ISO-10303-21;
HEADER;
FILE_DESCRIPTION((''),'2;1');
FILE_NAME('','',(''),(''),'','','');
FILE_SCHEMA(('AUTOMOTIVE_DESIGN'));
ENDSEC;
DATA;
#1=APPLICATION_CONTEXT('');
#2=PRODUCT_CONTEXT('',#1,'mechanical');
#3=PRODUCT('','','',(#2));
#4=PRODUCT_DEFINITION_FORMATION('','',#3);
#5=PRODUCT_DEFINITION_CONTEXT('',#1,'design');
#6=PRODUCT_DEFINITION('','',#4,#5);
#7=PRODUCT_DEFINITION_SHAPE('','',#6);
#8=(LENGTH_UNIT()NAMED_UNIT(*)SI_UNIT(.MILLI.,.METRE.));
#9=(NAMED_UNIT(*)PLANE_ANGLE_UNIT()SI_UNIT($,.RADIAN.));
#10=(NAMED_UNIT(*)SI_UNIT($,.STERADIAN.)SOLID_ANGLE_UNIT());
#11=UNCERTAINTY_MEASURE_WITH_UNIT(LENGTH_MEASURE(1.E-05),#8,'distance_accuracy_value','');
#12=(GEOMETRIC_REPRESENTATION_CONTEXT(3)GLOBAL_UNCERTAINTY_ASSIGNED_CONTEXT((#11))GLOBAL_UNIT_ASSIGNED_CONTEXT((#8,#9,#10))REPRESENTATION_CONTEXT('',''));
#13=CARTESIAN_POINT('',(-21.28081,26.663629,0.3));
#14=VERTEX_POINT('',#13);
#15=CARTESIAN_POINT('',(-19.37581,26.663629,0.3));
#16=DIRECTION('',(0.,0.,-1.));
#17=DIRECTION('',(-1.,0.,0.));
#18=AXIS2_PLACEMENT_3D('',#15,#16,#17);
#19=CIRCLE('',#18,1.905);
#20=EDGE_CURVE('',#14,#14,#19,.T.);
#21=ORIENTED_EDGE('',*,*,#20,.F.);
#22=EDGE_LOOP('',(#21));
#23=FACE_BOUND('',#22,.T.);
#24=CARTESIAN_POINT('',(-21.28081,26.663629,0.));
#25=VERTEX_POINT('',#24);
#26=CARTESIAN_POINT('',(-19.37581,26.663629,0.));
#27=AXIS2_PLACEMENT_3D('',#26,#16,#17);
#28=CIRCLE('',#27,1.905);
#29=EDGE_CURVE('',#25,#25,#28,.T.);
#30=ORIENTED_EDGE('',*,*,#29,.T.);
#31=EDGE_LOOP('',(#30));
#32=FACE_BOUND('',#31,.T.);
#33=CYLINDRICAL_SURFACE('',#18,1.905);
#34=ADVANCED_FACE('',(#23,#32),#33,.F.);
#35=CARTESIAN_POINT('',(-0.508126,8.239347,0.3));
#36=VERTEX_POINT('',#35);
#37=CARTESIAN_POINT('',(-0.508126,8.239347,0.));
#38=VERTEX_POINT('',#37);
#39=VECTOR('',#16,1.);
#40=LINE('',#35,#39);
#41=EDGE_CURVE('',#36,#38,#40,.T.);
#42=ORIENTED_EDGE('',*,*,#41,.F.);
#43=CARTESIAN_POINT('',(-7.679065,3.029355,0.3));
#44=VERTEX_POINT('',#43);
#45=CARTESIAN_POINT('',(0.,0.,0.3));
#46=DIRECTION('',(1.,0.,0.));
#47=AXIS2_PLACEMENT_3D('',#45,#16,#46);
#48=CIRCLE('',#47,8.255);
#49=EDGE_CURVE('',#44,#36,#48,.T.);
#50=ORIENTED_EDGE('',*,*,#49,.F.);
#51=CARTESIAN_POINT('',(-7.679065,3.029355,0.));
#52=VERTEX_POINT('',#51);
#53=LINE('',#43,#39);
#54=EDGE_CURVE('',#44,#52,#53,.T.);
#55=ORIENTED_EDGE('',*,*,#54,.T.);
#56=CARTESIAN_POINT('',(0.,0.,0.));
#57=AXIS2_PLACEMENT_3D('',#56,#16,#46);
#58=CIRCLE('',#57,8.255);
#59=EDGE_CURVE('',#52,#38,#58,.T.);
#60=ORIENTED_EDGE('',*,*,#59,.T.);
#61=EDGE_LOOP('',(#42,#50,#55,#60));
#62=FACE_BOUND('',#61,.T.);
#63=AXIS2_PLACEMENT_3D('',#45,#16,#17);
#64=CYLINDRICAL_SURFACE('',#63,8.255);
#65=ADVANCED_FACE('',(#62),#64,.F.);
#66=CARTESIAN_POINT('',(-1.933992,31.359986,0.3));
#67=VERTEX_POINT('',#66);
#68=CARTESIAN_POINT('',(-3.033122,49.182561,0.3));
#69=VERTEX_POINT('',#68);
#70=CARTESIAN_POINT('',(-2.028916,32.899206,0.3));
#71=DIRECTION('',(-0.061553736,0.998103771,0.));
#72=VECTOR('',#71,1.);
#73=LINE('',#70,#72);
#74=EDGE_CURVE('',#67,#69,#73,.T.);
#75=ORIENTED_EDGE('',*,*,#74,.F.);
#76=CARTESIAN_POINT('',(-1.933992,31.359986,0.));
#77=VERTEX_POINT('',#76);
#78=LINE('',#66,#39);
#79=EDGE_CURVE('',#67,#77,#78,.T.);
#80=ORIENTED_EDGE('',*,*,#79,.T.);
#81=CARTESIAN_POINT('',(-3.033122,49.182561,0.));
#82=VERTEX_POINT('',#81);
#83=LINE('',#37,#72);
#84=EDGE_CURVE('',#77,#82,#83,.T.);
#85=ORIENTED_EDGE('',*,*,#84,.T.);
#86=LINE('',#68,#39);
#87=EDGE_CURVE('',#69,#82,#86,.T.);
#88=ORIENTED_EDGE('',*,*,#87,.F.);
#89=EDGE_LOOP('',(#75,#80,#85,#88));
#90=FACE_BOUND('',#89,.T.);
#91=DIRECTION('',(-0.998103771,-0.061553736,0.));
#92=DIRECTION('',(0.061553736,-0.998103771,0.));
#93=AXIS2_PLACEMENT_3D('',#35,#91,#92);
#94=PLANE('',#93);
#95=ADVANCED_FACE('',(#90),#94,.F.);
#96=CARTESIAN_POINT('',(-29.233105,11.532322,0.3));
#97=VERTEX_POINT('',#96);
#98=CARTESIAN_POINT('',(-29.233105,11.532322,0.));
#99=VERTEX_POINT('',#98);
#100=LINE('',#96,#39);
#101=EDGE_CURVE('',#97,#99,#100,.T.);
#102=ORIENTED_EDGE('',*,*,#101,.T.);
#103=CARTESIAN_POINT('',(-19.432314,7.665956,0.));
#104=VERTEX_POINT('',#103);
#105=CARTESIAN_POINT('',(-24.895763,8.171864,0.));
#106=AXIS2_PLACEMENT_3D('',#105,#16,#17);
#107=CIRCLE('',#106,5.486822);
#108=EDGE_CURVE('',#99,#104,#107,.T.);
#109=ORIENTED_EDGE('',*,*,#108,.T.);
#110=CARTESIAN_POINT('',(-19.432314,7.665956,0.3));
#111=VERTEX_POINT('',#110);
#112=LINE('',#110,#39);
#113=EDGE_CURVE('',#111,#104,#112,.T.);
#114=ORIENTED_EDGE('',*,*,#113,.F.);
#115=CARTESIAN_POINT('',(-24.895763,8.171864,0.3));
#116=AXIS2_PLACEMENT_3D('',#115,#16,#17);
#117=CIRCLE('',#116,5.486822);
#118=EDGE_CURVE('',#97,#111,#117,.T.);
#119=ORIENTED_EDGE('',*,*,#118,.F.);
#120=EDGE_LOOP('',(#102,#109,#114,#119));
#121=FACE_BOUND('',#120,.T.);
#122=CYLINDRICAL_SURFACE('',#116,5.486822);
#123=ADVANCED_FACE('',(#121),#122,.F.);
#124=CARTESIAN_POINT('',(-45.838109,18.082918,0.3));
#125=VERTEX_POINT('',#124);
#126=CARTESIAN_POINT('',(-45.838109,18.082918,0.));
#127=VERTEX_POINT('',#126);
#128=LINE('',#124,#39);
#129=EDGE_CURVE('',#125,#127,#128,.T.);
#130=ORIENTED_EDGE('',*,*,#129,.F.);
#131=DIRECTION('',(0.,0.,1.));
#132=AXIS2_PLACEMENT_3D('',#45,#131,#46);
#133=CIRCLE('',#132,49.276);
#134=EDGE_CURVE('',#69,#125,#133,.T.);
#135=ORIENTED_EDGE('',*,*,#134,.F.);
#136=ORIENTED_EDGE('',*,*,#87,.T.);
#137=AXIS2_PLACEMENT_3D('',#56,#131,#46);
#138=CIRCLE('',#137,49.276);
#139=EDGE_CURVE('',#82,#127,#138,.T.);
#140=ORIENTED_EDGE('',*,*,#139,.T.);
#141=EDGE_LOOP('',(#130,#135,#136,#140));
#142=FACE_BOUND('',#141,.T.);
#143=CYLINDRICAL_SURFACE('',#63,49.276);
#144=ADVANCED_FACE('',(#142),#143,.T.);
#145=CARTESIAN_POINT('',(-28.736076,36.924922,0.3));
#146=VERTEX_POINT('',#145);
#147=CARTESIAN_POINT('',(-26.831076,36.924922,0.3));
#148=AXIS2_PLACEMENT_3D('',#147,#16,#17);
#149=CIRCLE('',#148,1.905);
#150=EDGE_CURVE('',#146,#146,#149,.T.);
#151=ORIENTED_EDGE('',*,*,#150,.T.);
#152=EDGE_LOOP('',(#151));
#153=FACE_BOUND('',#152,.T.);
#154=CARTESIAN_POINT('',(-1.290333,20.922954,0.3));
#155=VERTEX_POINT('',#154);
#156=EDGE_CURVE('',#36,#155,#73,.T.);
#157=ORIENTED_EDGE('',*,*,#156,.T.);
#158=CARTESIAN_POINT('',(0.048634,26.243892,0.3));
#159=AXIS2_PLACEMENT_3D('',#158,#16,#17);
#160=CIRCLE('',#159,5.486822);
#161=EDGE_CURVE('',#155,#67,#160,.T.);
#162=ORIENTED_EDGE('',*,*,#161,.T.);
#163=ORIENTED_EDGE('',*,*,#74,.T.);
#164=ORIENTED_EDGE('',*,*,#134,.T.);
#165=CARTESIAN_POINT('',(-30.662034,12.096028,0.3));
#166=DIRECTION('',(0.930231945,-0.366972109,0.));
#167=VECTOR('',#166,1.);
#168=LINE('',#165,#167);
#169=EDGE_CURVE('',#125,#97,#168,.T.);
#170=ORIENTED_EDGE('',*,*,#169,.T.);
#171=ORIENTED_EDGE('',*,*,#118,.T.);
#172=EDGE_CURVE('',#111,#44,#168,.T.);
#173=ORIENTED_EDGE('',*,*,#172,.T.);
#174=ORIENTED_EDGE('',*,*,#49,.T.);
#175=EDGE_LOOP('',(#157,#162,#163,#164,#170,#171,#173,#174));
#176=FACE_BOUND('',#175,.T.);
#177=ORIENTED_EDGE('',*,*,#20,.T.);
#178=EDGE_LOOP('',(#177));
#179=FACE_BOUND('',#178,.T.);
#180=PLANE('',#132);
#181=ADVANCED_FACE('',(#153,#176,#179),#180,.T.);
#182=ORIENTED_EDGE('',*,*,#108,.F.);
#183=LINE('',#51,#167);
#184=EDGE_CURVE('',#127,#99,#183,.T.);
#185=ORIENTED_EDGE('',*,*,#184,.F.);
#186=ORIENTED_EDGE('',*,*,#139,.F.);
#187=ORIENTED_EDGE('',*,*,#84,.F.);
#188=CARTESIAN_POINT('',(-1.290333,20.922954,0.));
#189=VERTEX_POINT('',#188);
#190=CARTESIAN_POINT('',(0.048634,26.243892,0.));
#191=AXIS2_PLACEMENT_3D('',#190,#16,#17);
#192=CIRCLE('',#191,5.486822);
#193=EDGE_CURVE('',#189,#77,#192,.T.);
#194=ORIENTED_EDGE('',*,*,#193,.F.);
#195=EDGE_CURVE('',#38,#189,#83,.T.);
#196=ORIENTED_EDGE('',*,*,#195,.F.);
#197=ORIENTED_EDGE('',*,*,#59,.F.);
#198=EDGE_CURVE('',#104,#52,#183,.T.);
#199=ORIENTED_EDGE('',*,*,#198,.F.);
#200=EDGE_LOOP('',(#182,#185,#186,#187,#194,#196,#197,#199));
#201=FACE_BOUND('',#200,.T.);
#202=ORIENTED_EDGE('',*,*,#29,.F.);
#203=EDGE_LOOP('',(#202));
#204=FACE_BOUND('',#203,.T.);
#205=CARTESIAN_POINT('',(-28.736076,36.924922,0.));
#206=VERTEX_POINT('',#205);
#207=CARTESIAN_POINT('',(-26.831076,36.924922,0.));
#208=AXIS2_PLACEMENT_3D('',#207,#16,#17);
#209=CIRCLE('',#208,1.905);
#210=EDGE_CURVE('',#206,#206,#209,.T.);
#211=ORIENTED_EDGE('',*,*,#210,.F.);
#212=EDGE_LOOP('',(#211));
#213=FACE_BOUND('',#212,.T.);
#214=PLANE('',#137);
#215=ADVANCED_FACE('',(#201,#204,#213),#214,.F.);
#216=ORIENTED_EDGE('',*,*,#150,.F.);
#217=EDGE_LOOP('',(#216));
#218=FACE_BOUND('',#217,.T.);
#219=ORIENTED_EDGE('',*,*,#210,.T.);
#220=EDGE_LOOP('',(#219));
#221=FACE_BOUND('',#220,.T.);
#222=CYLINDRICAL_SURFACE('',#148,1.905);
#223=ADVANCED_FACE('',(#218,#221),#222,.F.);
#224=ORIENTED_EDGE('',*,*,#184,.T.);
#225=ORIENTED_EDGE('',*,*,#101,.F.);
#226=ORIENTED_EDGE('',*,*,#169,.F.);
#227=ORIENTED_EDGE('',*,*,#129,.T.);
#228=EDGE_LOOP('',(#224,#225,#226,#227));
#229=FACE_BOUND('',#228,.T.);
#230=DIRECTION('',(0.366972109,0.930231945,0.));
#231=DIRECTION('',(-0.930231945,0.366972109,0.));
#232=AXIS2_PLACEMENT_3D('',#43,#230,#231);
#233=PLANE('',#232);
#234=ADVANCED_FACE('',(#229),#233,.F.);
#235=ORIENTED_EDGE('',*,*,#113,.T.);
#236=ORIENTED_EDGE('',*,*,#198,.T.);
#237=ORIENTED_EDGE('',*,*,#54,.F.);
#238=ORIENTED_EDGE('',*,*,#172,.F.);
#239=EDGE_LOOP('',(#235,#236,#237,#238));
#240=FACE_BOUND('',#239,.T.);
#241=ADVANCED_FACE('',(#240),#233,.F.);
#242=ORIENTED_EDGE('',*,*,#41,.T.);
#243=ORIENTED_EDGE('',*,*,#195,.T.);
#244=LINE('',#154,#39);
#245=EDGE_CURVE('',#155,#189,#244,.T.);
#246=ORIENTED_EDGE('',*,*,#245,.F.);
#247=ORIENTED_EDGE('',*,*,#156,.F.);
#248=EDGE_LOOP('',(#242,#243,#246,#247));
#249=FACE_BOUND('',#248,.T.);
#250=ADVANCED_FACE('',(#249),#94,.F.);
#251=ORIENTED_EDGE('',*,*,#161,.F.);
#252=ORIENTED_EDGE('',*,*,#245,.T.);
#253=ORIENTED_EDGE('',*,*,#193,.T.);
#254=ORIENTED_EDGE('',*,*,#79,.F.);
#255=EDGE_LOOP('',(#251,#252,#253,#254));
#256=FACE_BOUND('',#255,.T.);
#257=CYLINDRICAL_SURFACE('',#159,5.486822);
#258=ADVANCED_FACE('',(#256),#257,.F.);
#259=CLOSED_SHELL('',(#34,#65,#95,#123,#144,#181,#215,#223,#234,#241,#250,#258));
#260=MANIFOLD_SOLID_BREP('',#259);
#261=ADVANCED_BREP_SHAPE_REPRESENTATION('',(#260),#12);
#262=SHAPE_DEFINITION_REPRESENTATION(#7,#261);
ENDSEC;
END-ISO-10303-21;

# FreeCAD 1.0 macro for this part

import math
import FreeCAD as App
import Part
import Sketcher
Q = App.Units.Quantity

doc = App.newDocument("Part")
body = doc.addObject("PartDesign::Body", "Body")

# Sketch on XY plane
sketch1 = body.newObject("Sketcher::SketchObject", "Sketch")
sketch1.AttachmentSupport = (doc.getObject("XY_Plane"), [""])
sketch1.MapMode = "FlatFace"
sketch1.addGeometry([
    Part.LineSegment(App.Vector(-2, 33, 0), App.Vector(-3, 49, 0)),  # 0
    Part.ArcOfCircle(Part.Circle(App.Vector(0, 0, 0), App.Vector(0, 0, 1), 49), math.radians(94), math.radians(158)),  # 1
    Part.LineSegment(App.Vector(-46, 18, 0), App.Vector(-31, 12, 0)),  # 2
    Part.LineSegment(App.Vector(-31, 12, 0), App.Vector(-19, 7, 0)),  # 3
    Part.LineSegment(App.Vector(-19, 7, 0), App.Vector(-8, 3, 0)),  # 4
    Part.ArcOfCircle(Part.Circle(App.Vector(0, 0, 0), App.Vector(0, 0, 1), 8), math.radians(94), math.radians(158)),  # 5
    Part.LineSegment(App.Vector(-1, 8, 0), App.Vector(-1, 20, 0)),  # 6
    Part.LineSegment(App.Vector(-1, 20, 0), App.Vector(-2, 33, 0)),  # 7
], False)
sketch1.addConstraint([
    Sketcher.Constraint("Coincident", 0, 2, 1, 1),
    Sketcher.Constraint("Coincident", 1, 2, 2, 1),
    Sketcher.Constraint("Coincident", 2, 2, 3, 1),
    Sketcher.Constraint("Coincident", 3, 2, 4, 1),
    Sketcher.Constraint("Coincident", 4, 2, 5, 2),
    Sketcher.Constraint("Coincident", 5, 1, 6, 1),
    Sketcher.Constraint("Coincident", 6, 2, 7, 1),
    Sketcher.Constraint("Coincident", 7, 2, 0, 1),
    Sketcher.Constraint("Coincident", 1, 3, -1, 1),
    Sketcher.Constraint("Coincident", 5, 3, -1, 1),
    Sketcher.Constraint("Parallel", 2, 3),
    Sketcher.Constraint("Parallel", 3, 4),
    Sketcher.Constraint("Parallel", 0, 6),
    Sketcher.Constraint("Parallel", 6, 7),
    Sketcher.Constraint("Equal", 0, 2),
    Sketcher.Constraint("Equal", 4, 6),
    Sketcher.Constraint("Radius", 1, Q("1.94 in")),
    Sketcher.Constraint("Radius", 5, Q("0.325 in")),
    Sketcher.Constraint("Distance", 3, Q("0.5 in")),
    Sketcher.Constraint("Distance", 0, 16.314291),
    Sketcher.Constraint("DistanceX", 0, 2, -1, 1, 3.033122),
    Sketcher.Constraint("DistanceX", 1, 2, -1, 1, 45.838109),
    Sketcher.Constraint("DistanceX", 3, 2, -1, 1, 18.848089),
    Sketcher.Constraint("DistanceX", 4, 2, 5, 1, 7.170939),
])
pad1 = body.newObject("PartDesign::Pad", "Pad")
pad1.Profile = sketch1
pad1.Length = 0.3

# Sketch on XY plane
sketch2 = body.newObject("Sketcher::SketchObject", "Sketch001")
sketch2.AttachmentSupport = (doc.getObject("XY_Plane"), [""])
sketch2.MapMode = "FlatFace"
sketch2.addGeometry([
    Part.Circle(App.Vector(-26.8, 36.9, 0), App.Vector(0, 0, 1), 1.9),
    Part.Circle(App.Vector(-19.4, 26.7, 0), App.Vector(0, 0, 1), 1.9),
], False)
sketch2.addConstraint([
    Sketcher.Constraint("Equal", 0, 1),
    Sketcher.Constraint("Diameter", 0, Q("0.15 in")),
    Sketcher.Constraint("DistanceY", -1, 1, 0, 3, 36.924922),
    Sketcher.Constraint("DistanceX", 1, 3, -1, 1, 19.37581),
    Sketcher.Constraint("DistanceY", -1, 1, 1, 3, 26.663629),
    Sketcher.Constraint("DistanceX", 0, 3, -1, 1, 26.831076),
])
pocket1 = body.newObject("PartDesign::Pocket", "Pocket")
pocket1.Profile = sketch2
pocket1.Type = "ThroughAll"
pocket1.Reversed = True

# Sketch on XY plane
sketch3 = body.newObject("Sketcher::SketchObject", "Sketch002")
sketch3.AttachmentSupport = (doc.getObject("XY_Plane"), [""])
sketch3.MapMode = "FlatFace"
sketch3.addGeometry([
    Part.LineSegment(App.Vector(-2, 31, 0), App.Vector(-1, 21, 0)),
    Part.ArcOfCircle(Part.Circle(App.Vector(0, 26, 0), App.Vector(0, 0, 1), 5), math.radians(111), math.radians(256)),
    Part.LineSegment(App.Vector(-19, 8, 0), App.Vector(-29, 12, 0)),
    Part.ArcOfCircle(Part.Circle(App.Vector(-25, 8, 0), App.Vector(0, 0, 1), 5), math.radians(-5), math.radians(142)),
], False)
sketch3.addConstraint([
    Sketcher.Constraint("Coincident", 0, 1, 1, 1),
    Sketcher.Constraint("Coincident", 1, 2, 0, 2),
    Sketcher.Constraint("Coincident", 2, 1, 3, 1),
    Sketcher.Constraint("Coincident", 3, 2, 2, 2),
    Sketcher.Constraint("Equal", 1, 3),
    Sketcher.Constraint("Radius", 1, 5.486822),
    Sketcher.Constraint("DistanceY", 2, 1, 1, 2, 13.256998),
    Sketcher.Constraint("Distance", 0, 10.45686),
    Sketcher.Constraint("DistanceX", 0, 1, -1, 1, 1.933992),
    Sketcher.Constraint("DistanceY", -1, 1, 3, 2, 11.532322),
    Sketcher.Constraint("DistanceY", 3, 3, 1, 3, 18.072028),
    Sketcher.Constraint("DistanceX", 3, 3, 0, 1, 22.961771),
    Sketcher.Constraint("DistanceY", 3, 3, 0, 1, 23.188121),
    Sketcher.Constraint("DistanceX", 3, 2, 2, 1, 9.800791),
])
pocket2 = body.newObject("PartDesign::Pocket", "Pocket001")
pocket2.Profile = sketch3
pocket2.Type = "ThroughAll"
pocket2.Reversed = True

doc.recompute()
